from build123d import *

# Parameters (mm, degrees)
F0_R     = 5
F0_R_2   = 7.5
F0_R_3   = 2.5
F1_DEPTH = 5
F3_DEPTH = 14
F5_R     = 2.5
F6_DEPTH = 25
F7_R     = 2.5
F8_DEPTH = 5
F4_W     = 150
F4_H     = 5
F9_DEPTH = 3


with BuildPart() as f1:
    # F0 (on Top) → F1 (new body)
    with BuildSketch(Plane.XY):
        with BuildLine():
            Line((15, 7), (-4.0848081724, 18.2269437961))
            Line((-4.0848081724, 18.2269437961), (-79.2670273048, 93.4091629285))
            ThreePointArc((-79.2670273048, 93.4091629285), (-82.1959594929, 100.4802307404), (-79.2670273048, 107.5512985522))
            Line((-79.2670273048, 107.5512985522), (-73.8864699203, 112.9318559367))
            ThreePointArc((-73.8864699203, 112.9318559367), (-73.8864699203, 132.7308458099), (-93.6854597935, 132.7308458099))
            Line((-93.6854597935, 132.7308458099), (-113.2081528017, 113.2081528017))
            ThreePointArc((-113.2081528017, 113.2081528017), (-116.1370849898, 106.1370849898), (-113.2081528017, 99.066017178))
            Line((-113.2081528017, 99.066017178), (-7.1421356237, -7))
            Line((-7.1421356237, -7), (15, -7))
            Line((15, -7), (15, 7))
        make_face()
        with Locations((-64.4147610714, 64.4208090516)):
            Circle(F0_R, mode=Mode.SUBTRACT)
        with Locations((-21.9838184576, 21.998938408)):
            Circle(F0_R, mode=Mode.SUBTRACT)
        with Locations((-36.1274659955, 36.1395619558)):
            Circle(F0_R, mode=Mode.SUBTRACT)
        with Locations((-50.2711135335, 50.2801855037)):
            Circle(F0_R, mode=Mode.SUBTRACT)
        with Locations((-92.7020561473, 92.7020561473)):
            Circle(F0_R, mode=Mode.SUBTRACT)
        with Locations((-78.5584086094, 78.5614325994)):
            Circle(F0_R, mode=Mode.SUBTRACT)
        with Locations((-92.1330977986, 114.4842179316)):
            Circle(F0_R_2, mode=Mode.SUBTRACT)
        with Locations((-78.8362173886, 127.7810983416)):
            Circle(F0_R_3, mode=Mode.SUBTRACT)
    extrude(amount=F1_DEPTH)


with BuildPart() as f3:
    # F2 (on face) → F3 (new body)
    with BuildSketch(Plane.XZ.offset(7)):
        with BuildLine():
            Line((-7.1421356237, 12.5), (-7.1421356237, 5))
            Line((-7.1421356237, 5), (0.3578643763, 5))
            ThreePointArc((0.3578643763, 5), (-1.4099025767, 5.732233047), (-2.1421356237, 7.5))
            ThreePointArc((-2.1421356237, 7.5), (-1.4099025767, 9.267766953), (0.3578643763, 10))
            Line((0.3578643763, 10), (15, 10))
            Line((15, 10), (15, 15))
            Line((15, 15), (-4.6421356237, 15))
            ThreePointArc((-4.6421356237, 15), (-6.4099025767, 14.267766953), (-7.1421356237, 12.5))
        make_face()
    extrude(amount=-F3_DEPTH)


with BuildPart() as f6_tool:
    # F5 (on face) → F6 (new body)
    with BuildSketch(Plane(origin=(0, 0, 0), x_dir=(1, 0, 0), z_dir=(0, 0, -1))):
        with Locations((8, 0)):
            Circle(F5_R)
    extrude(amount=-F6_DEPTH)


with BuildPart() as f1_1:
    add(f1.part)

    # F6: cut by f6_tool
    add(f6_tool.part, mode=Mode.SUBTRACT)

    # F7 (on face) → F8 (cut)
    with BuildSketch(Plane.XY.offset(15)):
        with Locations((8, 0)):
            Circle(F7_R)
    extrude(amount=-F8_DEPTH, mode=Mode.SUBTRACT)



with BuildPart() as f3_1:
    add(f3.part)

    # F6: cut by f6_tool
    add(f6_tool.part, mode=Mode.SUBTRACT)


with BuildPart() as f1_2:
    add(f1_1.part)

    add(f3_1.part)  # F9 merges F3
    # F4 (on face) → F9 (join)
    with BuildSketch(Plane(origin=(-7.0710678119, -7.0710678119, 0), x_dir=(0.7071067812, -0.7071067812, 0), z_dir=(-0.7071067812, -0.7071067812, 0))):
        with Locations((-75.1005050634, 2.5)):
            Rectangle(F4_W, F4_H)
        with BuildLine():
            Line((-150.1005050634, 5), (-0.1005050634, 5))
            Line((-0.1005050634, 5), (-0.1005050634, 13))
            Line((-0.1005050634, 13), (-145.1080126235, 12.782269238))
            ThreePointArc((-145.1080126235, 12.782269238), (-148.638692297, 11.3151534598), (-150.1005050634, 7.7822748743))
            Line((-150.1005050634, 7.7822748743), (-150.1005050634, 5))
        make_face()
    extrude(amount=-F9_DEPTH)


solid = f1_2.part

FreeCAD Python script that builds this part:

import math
import FreeCAD as App
import Part
import Sketcher

V = App.Vector

doc = App.newDocument("Part")
body = doc.addObject("PartDesign::Body", "Body")

# Sketch on XY plane
sketch1 = body.newObject("Sketcher::SketchObject", "Sketch")
sketch1.AttachmentSupport = (doc.getObject("XY_Plane"), [""])
sketch1.MapMode = "FlatFace"
sketch1.addGeometry([
    Part.LineSegment(V(15, 7, 0), V(-4.1, 18.2, 0)),  # 0
    Part.LineSegment(V(-4.1, 18.2, 0), V(-79.3, 93.4, 0)),  # 1
    Part.ArcOfCircle(Part.Circle(V(-72.2, 100.5, 0), V(0, 0, 1), 10), math.radians(135), math.radians(225)),  # 2
    Part.LineSegment(V(-79.3, 107.6, 0), V(-73.9, 112.9, 0)),  # 3
    Part.ArcOfCircle(Part.Circle(V(-83.8, 122.8, 0), V(0, 0, 1), 14), math.radians(-45), math.radians(135)),  # 4
    Part.LineSegment(V(-93.7, 132.7, 0), V(-113.2, 113.2, 0)),  # 5
    Part.ArcOfCircle(Part.Circle(V(-106.1, 106.1, 0), V(0, 0, 1), 10), math.radians(135), math.radians(225)),  # 6
    Part.LineSegment(V(-113.2, 99.1, 0), V(-7.1, -7, 0)),  # 7
    Part.LineSegment(V(-7.1, -7, 0), V(15, -7, 0)),  # 8
    Part.LineSegment(V(15, -7, 0), V(15, 7, 0)),  # 9
    Part.Circle(V(-64.4, 64.4, 0), V(0, 0, 1), 5),  # 10
    Part.Circle(V(-22, 22, 0), V(0, 0, 1), 5),  # 11
    Part.Circle(V(-36.1, 36.1, 0), V(0, 0, 1), 5),  # 12
    Part.Circle(V(-50.3, 50.3, 0), V(0, 0, 1), 5),  # 13
    Part.Circle(V(-92.7, 92.7, 0), V(0, 0, 1), 5),  # 14
    Part.Circle(V(-78.6, 78.6, 0), V(0, 0, 1), 5),  # 15
    Part.Circle(V(-92.1, 114.5, 0), V(0, 0, 1), 7.5),  # 16
    Part.Circle(V(-78.8, 127.8, 0), V(0, 0, 1), 2.5),  # 17
], False)
sketch1.addConstraint([
    Sketcher.Constraint("Coincident", 0, 2, 1, 1),
    Sketcher.Constraint("Tangent", 1, 2, 2, 2),
    Sketcher.Constraint("Tangent", 2, 1, 3, 1),
    Sketcher.Constraint("Tangent", 3, 2, 4, 1),
    Sketcher.Constraint("Tangent", 4, 2, 5, 1),
    Sketcher.Constraint("Tangent", 5, 2, 6, 1),
    Sketcher.Constraint("Tangent", 6, 2, 7, 1),
    Sketcher.Constraint("Coincident", 7, 2, 8, 1),
    Sketcher.Constraint("Coincident", 8, 2, 9, 1),
    Sketcher.Constraint("Coincident", 9, 2, 0, 1),
    Sketcher.Constraint("Horizontal", 8),
    Sketcher.Constraint("Vertical", 9),
    Sketcher.Constraint("Equal", 2, 6),
    Sketcher.Constraint("Equal", 10, 11),
    Sketcher.Constraint("Equal", 11, 12),
    Sketcher.Constraint("Equal", 12, 13),
    Sketcher.Constraint("Equal", 13, 14),
    Sketcher.Constraint("Equal", 14, 15),
    Sketcher.Constraint("Perpendicular", 1, 3),
    Sketcher.Constraint("Parallel", 3, 5),
    Sketcher.Constraint("Perpendicular", 5, 7),
    Sketcher.Constraint("Vertical", 1, 2, 2, 1),
    Sketcher.Constraint("Diameter", 10, 10.0),
    Sketcher.Constraint("Diameter", 16, 15.0),
    Sketcher.Constraint("Diameter", 17, 5.0),
    Sketcher.Constraint("Radius", 2, 10.0),
    Sketcher.Constraint("Radius", 4, 14.0),
    Sketcher.Constraint("DistanceY", 9, 1, 9, 2, 14.0),
    Sketcher.Constraint("Distance", 7, 150.0),
    Sketcher.Constraint("DistanceY", 7, 2, -1, 1, 7.0),
    Sketcher.Constraint("DistanceX", -1, 1, 8, 2, 15.0),
    Sketcher.Constraint("DistanceY", -1, 1, 17, 3, 127.781098),
    Sketcher.Constraint("DistanceY", -1, 1, 2, 1, 107.551299),
    Sketcher.Constraint("DistanceX", 2, 3, 10, 3, 7.781198),
    Sketcher.Constraint("DistanceX", 4, 3, 12, 3, 47.658499),
    Sketcher.Constraint("DistanceY", 13, 3, 6, 3, 55.856899),
    Sketcher.Constraint("DistanceY", 15, 3, 2, 3, 21.918798),
    Sketcher.Constraint("DistanceX", 15, 3, 0, 2, 74.4736),
    Sketcher.Constraint("DistanceY", 5, 2, 4, 3, 9.623198),
    Sketcher.Constraint("DistanceY", 6, 2, 16, 3, 15.418201),
    Sketcher.Constraint("DistanceX", 8, 1, 8, 2, 22.142136),
    Sketcher.Constraint("DistanceY", -1, 1, 10, 3, 64.420809),
    Sketcher.Constraint("DistanceX", 11, 3, -1, 1, 21.983818),
    Sketcher.Constraint("DistanceY", -1, 1, 11, 3, 21.998938),
    Sketcher.Constraint("DistanceY", -1, 1, 12, 3, 36.139562),
    Sketcher.Constraint("DistanceX", 15, 3, -1, 1, 78.558409),
    Sketcher.Constraint("DistanceX", 6, 3, 13, 3, 55.865971),
    Sketcher.Constraint("DistanceX", 6, 3, 14, 3, 13.435029),
    Sketcher.Constraint("DistanceY", 14, 3, 6, 3, 13.435029),
    Sketcher.Constraint("DistanceX", 14, 3, 16, 3, 0.568958),
    Sketcher.Constraint("DistanceX", 16, 3, 17, 3, 13.29688),
])
pad1 = body.newObject("PartDesign::Pad", "Pad")
pad1.Profile = sketch1
pad1.Length = 5
body2 = doc.addObject("PartDesign::Body", "Body001")

# Sketch on XZ plane
sketch2 = body2.newObject("Sketcher::SketchObject", "Sketch001")
sketch2.AttachmentSupport = (doc.getObject("XZ_Plane001"), [""])
sketch2.MapMode = "FlatFace"
sketch2.AttachmentOffset = App.Placement(V(0, 0, 7), App.Rotation())
sketch2.addGeometry([
    Part.LineSegment(V(-7.1, 12.5, 0), V(-7.1, 5, 0)),  # 0
    Part.LineSegment(V(-7.1, 5, 0), V(0.4, 5, 0)),  # 1
    Part.ArcOfCircle(Part.Circle(V(0.4, 7.5, 0), V(0, 0, 1), 2.5), math.radians(180), math.radians(270)),  # 2
    Part.ArcOfCircle(Part.Circle(V(0.4, 7.5, 0), V(0, 0, 1), 2.5), math.radians(90), math.radians(180)),  # 3
    Part.LineSegment(V(0.4, 10, 0), V(15, 10, 0)),  # 4
    Part.LineSegment(V(15, 10, 0), V(15, 15, 0)),  # 5
    Part.LineSegment(V(15, 15, 0), V(-4.6, 15, 0)),  # 6
    Part.ArcOfCircle(Part.Circle(V(-4.6, 12.5, 0), V(0, 0, 1), 2.5), math.radians(90), math.radians(180)),  # 7
], False)
sketch2.addConstraint([
    Sketcher.Constraint("Coincident", 0, 2, 1, 1),
    Sketcher.Constraint("Tangent", 1, 2, 2, 2),
    Sketcher.Constraint("Tangent", 2, 1, 3, 2),
    Sketcher.Constraint("Tangent", 3, 1, 4, 1),
    Sketcher.Constraint("Coincident", 4, 2, 5, 1),
    Sketcher.Constraint("Coincident", 5, 2, 6, 1),
    Sketcher.Constraint("Tangent", 6, 2, 7, 1),
    Sketcher.Constraint("Tangent", 7, 2, 0, 1),
    Sketcher.Constraint("Vertical", 0),
    Sketcher.Constraint("Horizontal", 1),
    Sketcher.Constraint("Horizontal", 4),
    Sketcher.Constraint("Vertical", 5),
    Sketcher.Constraint("Horizontal", 6),
    Sketcher.Constraint("Equal", 2, 3),
    Sketcher.Constraint("Equal", 3, 7),
    Sketcher.Constraint("Horizontal", 3, 3, 2, 1),
    Sketcher.Constraint("Equal", 1, 0),
    Sketcher.Constraint("Radius", 2, 2.5),
    Sketcher.Constraint("DistanceY", 5, 1, 5, 2, 5.0),
    Sketcher.Constraint("DistanceY", -1, 1, 0, 2, 5.0),
    Sketcher.Constraint("DistanceX", -1, 1, 4, 2, 15.0),
    Sketcher.Constraint("DistanceX", 4, 1, 4, 2, 14.642136),
])
pad2 = body2.newObject("PartDesign::Pad", "Pad001")
pad2.Profile = sketch2
pad2.Length = 14
pad2.Reversed = True
body3 = doc.addObject("PartDesign::Body", "Body002")

# Sketch on XY plane
sketch3 = body3.newObject("Sketcher::SketchObject", "Sketch002")
sketch3.AttachmentSupport = (doc.getObject("XY_Plane002"), [""])
sketch3.MapMode = "FlatFace"
sketch3.addGeometry(Part.Circle(V(8, 0, 0), V(0, 0, 1), 2.5), False)
sketch3.addConstraint([
    Sketcher.Constraint("PointOnObject", 0, 3, -1),
    Sketcher.Constraint("Diameter", 0, 5.0),
    Sketcher.Constraint("DistanceX", -1, 1, 0, 3, 8.0),
])
pad3 = body3.newObject("PartDesign::Pad", "Pad002")
pad3.Profile = sketch3
pad3.Length = 25
doc.recompute()

body4 = doc.addObject("PartDesign::Body", "Body003")
body4.BaseFeature = body3
boolean = body.newObject("PartDesign::Boolean", "Boolean")
boolean.Type = "Cut"
boolean.addObjects([body4])
doc.recompute()

# Sketch on XY plane
sketch4 = body.newObject("Sketcher::SketchObject", "Sketch003")
sketch4.AttachmentSupport = (doc.getObject("XY_Plane"), [""])
sketch4.MapMode = "FlatFace"
sketch4.AttachmentOffset = App.Placement(V(0, 0, 15), App.Rotation())
sketch4.addGeometry(Part.Circle(V(8, 0, 0), V(0, 0, 1), 2.5), False)
sketch4.addConstraint([
    Sketcher.Constraint("PointOnObject", 0, 3, -1),
    Sketcher.Constraint("Diameter", 0, 5.0),
    Sketcher.Constraint("DistanceX", -1, 1, 0, 3, 8.0),
])
pocket1 = body.newObject("PartDesign::Pocket", "Pocket")
pocket1.Profile = sketch4
pocket1.Length = 5
doc.recompute()

boolean2 = body2.newObject("PartDesign::Boolean", "Boolean001")
boolean2.Type = "Cut"
boolean2.addObjects([body3])
doc.recompute()

boolean3 = body.newObject("PartDesign::Boolean", "Boolean002")
boolean3.Type = "Fuse"
boolean3.addObjects([body2])

# Sketch on an angled plane
sketch5 = body.newObject("Sketcher::SketchObject", "Sketch004")
sketch5.Placement = App.Placement(V(-7.071068, -7.071068, 0), App.Rotation(V(0.707106781, -0.707106781, 0), V(0, 0, 0.999999999), V(-0.707106781, -0.707106781, 0), "ZXY"))
sketch5.addGeometry([
    Part.LineSegment(V(-150, 0, 0), V(0, 0, 0)),  # 0
    Part.LineSegment(V(0, 0, 0), V(0, 13, 0)),  # 1
    Part.LineSegment(V(0, 13, 0), V(-145, 13, 0)),  # 2
    Part.ArcOfCircle(Part.Circle(V(-145, 8, 0), V(0, 0, 1), 5), math.radians(90), math.radians(180)),  # 3
    Part.LineSegment(V(-150, 8, 0), V(-150, 0, 0)),  # 4
], False)
sketch5.addConstraint([
    Sketcher.Constraint("Coincident", 0, 2, 1, 1),
    Sketcher.Constraint("Coincident", 1, 2, 2, 1),
    Sketcher.Constraint("Tangent", 2, 2, 3, 1),
    Sketcher.Constraint("Tangent", 3, 2, 4, 1),
    Sketcher.Constraint("Coincident", 4, 2, 0, 1),
    Sketcher.Constraint("Horizontal", 0),
    Sketcher.Constraint("Vertical", 1),
    Sketcher.Constraint("Vertical", 4),
    Sketcher.Constraint("PointOnObject", 0, 2, -1),
    Sketcher.Constraint("Radius", 3, 5.0),
    Sketcher.Constraint("DistanceX", 0, 1, 0, 2, 150.0),
    Sketcher.Constraint("DistanceY", 1, 1, 1, 2, 13.0),
    Sketcher.Constraint("Distance", 2, 145.007671),
    Sketcher.Constraint("DistanceX", 3, 3, -1, 1, 145.100505),
])
pad4 = body.newObject("PartDesign::Pad", "Pad003")
pad4.Profile = sketch5
pad4.Length = 3
pad4.Reversed = True

doc.recompute()
